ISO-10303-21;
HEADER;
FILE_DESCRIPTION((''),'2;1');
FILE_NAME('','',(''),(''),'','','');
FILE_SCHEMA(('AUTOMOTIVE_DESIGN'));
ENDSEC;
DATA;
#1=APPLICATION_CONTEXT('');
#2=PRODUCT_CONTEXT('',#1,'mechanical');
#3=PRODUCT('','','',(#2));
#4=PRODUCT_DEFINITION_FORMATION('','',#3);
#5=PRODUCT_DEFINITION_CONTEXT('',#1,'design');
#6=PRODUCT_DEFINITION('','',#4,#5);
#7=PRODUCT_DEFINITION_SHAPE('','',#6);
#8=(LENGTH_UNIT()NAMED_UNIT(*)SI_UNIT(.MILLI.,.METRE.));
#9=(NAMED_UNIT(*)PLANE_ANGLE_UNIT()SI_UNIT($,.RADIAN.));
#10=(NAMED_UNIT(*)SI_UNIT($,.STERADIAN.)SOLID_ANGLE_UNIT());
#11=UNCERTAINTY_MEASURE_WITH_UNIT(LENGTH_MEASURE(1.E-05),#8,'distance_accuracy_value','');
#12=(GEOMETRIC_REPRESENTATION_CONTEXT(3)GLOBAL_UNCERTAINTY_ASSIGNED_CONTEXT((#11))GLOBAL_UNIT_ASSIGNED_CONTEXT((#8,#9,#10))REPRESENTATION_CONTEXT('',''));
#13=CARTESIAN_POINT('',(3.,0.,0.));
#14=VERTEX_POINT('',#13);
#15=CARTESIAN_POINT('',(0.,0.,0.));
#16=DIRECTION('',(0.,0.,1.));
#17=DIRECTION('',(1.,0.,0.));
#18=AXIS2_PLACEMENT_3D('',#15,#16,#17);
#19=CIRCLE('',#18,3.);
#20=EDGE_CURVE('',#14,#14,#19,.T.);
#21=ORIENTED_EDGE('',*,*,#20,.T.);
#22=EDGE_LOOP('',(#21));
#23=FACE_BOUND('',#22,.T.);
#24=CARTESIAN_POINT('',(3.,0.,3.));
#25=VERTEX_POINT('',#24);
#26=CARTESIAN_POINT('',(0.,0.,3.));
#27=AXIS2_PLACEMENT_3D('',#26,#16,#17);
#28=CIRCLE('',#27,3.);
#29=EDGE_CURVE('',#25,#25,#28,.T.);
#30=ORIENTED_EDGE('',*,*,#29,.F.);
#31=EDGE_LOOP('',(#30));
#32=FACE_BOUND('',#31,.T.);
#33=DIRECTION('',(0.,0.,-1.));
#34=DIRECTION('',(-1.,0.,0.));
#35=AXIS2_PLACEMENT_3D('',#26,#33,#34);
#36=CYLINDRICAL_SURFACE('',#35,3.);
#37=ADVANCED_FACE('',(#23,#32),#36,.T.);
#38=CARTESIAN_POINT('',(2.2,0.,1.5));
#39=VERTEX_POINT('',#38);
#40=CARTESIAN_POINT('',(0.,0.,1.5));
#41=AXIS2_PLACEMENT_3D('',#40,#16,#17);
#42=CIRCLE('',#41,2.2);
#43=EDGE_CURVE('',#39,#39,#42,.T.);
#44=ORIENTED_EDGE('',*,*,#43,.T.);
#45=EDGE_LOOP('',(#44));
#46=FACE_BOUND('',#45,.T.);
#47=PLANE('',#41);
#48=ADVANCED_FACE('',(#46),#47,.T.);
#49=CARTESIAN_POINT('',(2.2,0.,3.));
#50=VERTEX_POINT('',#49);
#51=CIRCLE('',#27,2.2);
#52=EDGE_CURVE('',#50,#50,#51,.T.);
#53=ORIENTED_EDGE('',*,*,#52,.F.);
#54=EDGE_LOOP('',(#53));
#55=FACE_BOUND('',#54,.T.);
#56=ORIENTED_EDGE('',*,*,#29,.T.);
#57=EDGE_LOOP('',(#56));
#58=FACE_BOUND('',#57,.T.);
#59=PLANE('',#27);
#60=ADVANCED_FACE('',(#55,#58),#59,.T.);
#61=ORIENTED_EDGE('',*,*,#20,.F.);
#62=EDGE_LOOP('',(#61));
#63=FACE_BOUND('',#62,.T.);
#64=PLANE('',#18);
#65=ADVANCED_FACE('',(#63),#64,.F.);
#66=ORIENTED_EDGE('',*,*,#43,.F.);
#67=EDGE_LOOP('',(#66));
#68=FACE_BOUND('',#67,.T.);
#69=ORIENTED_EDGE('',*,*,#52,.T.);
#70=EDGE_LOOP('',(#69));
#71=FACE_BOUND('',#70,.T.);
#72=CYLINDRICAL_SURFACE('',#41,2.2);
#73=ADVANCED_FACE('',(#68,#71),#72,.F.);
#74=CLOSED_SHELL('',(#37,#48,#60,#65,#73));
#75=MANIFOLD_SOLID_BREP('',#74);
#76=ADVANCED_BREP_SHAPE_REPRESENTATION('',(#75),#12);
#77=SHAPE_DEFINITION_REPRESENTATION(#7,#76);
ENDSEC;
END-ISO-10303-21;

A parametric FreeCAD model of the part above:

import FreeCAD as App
import Part
import Sketcher

doc = App.newDocument("Part")
body = doc.addObject("PartDesign::Body", "Body")

# Sketch on XY plane
sketch1 = body.newObject("Sketcher::SketchObject", "Sketch")
sketch1.AttachmentSupport = (doc.getObject("XY_Plane"), [""])
sketch1.MapMode = "FlatFace"
sketch1.addGeometry(Part.Circle(App.Vector(0, 0, 0), App.Vector(0, 0, 1), 3), False)
sketch1.addConstraint([
    Sketcher.Constraint("Coincident", 0, 3, -1, 1),
    Sketcher.Constraint("Diameter", 0, 6.0),
])
pad1 = body.newObject("PartDesign::Pad", "Pad")
pad1.Profile = sketch1
pad1.Length = 3

# Sketch on XY plane
sketch2 = body.newObject("Sketcher::SketchObject", "Sketch001")
sketch2.AttachmentSupport = (doc.getObject("XY_Plane"), [""])
sketch2.MapMode = "FlatFace"
sketch2.AttachmentOffset = App.Placement(App.Vector(0, 0, 3), App.Rotation())
sketch2.addGeometry(Part.Circle(App.Vector(0, 0, 0), App.Vector(0, 0, 1), 2.2), False)
sketch2.addConstraint([
    Sketcher.Constraint("Coincident", 0, 3, -1, 1),
    Sketcher.Constraint("Diameter", 0, 4.4),
])
pocket1 = body.newObject("PartDesign::Pocket", "Pocket")
pocket1.Profile = sketch2
pocket1.Length = 1.5

doc.recompute()
